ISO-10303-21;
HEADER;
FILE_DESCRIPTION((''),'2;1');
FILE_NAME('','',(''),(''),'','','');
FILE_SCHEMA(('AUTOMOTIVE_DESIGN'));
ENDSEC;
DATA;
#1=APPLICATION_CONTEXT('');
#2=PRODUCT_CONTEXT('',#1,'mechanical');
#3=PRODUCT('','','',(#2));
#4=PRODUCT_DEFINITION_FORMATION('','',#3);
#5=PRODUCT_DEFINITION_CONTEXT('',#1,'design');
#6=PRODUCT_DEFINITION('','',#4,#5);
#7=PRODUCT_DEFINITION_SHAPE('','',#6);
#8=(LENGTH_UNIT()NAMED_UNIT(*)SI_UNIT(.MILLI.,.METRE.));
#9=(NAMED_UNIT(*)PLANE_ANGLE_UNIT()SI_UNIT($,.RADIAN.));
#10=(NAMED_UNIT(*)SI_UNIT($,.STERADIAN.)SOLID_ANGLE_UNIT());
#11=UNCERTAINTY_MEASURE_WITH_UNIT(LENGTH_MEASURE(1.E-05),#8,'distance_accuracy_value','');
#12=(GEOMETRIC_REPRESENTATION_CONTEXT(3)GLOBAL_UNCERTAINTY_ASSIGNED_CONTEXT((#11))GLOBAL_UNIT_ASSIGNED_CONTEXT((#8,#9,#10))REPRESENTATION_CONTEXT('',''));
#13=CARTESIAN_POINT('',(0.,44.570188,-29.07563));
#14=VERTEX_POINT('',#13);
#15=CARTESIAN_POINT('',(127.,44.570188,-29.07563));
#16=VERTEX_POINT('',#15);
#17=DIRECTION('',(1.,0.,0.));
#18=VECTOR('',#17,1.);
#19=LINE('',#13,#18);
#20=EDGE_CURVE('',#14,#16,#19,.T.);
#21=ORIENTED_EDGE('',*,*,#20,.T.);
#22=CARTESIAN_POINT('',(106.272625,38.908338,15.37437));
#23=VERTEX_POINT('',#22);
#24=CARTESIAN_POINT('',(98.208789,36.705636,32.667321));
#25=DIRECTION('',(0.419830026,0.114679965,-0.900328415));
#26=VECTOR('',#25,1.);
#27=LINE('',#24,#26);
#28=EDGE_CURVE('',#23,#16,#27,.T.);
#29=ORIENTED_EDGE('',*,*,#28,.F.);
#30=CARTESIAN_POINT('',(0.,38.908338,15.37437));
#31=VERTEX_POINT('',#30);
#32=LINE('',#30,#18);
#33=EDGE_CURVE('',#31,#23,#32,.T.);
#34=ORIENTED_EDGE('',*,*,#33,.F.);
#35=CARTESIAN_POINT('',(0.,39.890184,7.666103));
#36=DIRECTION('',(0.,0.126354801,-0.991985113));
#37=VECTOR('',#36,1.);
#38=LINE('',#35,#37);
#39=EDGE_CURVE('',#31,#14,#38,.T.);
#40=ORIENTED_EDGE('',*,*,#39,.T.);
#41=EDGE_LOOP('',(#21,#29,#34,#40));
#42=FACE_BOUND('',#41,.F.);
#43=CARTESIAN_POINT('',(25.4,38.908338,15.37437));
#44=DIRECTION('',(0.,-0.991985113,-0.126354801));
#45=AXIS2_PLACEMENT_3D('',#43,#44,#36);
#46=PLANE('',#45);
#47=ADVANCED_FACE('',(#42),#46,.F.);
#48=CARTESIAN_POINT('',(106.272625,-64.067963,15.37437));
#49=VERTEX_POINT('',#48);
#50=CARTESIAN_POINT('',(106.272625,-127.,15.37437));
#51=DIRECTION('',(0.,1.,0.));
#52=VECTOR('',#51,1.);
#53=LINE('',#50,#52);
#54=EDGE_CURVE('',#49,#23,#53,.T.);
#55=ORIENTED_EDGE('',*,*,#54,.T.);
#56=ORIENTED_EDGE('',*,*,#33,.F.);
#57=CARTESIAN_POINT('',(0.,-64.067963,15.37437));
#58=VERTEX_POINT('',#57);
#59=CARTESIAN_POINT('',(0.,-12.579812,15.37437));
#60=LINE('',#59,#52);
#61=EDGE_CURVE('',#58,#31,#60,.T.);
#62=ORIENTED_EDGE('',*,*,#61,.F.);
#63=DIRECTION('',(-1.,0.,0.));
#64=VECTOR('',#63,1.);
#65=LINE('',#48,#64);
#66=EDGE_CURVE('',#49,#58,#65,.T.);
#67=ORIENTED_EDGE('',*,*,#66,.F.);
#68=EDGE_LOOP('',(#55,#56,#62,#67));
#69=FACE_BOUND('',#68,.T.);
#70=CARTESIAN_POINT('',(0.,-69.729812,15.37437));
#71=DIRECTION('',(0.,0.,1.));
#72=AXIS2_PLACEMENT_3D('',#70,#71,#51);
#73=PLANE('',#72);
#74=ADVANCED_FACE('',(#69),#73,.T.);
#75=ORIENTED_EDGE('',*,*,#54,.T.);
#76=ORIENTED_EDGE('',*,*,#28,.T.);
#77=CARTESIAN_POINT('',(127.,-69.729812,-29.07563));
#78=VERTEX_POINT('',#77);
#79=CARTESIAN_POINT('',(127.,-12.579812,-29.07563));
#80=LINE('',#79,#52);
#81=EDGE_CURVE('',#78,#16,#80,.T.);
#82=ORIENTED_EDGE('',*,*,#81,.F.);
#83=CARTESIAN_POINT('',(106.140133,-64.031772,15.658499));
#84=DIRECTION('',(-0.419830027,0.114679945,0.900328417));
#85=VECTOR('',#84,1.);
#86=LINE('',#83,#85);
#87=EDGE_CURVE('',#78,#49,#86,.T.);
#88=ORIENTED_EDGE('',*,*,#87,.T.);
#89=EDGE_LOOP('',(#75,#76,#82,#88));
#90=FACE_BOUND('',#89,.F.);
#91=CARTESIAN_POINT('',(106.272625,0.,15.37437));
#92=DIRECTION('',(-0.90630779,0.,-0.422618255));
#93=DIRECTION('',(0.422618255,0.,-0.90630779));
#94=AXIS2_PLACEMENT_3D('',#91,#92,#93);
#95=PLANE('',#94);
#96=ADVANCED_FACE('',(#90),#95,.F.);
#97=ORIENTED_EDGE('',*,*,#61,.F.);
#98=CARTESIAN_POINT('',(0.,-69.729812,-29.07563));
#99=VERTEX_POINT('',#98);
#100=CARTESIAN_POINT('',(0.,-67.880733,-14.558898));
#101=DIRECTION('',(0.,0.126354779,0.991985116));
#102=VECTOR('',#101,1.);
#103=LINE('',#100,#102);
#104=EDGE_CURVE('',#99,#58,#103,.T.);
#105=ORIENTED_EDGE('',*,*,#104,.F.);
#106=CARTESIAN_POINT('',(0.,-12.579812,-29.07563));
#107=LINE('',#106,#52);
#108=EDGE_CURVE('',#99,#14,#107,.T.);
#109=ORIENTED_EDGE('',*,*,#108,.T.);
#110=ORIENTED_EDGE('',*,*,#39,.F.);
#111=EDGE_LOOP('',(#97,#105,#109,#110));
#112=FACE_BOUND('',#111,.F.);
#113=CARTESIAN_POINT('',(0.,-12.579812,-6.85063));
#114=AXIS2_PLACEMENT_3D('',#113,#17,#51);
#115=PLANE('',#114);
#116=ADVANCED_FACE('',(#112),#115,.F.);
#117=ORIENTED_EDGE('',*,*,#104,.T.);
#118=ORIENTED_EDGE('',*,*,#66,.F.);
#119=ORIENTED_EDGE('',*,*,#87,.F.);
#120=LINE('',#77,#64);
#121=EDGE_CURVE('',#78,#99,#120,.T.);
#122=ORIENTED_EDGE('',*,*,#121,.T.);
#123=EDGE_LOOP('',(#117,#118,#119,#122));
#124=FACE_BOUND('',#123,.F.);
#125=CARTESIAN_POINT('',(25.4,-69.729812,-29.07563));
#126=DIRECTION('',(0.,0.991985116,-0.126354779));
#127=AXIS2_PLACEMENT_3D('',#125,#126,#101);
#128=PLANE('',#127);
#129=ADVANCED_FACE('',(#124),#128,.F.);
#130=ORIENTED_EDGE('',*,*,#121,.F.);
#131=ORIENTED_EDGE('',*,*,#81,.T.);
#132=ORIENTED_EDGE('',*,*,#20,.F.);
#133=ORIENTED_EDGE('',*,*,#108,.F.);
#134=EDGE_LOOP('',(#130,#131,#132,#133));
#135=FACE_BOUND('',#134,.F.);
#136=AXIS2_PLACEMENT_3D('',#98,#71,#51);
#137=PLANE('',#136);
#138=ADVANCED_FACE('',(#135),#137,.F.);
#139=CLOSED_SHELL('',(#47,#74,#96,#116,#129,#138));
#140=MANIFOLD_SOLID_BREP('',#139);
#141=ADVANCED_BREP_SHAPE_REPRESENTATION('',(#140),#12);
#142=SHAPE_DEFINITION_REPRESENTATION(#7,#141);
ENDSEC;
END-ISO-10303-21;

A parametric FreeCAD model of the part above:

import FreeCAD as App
import Part
import Sketcher
from FreeCAD import Vector
Q = App.Units.Quantity


def add_polygon(sketch, points):
    """Adds a closed chain of lines whose ends are joined by coincident constraints."""
    first, n = sketch.GeometryCount, len(points)
    for a, b in zip(points, points[1:] + points[:1]):
        sketch.addGeometry(Part.LineSegment(App.Vector(*a, 0), App.Vector(*b, 0)), False)
    for i in range(n):
        sketch.addConstraint(Sketcher.Constraint("Coincident", first + i, 2, first + (i + 1) % n, 1))

doc = App.newDocument("Part")
params = doc.addObject("Spreadsheet::Sheet", "Params")
for row, (alias, value) in enumerate([
    ("sketch1_width", "4.5 in"),
    ("sketch1_height", "1.75 in"),
    ("pad1_length", "5 in"),
    ("sketch2_height", "1.75 in"),
    ("pocket1_length", "10 in"),
    ("sketch3_height", "1.75 in"),
], start=1):
    params.set(f"A{row}", alias)
    params.set(f"B{row}", "=" + value)
    params.setAlias(f"B{row}", alias)

body = doc.addObject("PartDesign::Body", "Body")

sketch1 = body.newObject("Sketcher::SketchObject", "Sketch")
sketch1.AttachmentSupport = (doc.getObject("YZ_Plane"), [""])
sketch1.MapMode = "FlatFace"
add_polygon(sketch1, [(-70, 15), (-70, -29), (45, -29), (45, 15)])
sketch1.addConstraint([
    Sketcher.Constraint("Vertical", 0),
    Sketcher.Constraint("Horizontal", 1),
    Sketcher.Constraint("Vertical", 2),
    Sketcher.Constraint("Horizontal", 3),
    Sketcher.Constraint("DistanceX", 1, 1, 1, 2, Q("4.5 in")),
    Sketcher.Constraint("DistanceY", 0, 2, 0, 1, Q("1.75 in")),
    Sketcher.Constraint("DistanceX", 0, 2, -1, 1, 69.729812),
    Sketcher.Constraint("DistanceY", 0, 2, -1, 1, 29.07563),
])
sketch1.setExpression("Constraints[8]", "Params.sketch1_width")
sketch1.setExpression("Constraints[9]", "Params.sketch1_height")
pad1 = body.newObject("PartDesign::Pad", "Pad")
pad1.Profile = sketch1
pad1.setExpression("Length", "Params.pad1_length")

sketch2 = body.newObject("Sketcher::SketchObject", "Sketch001")
sketch2.AttachmentSupport = (doc.getObject("XZ_Plane"), [""])
sketch2.MapMode = "FlatFace"
add_polygon(sketch2, [(127, -29), (127, 15), (106, 15)])
sketch2.addConstraint([
    Sketcher.Constraint("Vertical", 0),
    Sketcher.Constraint("Horizontal", 1),
    Sketcher.Constraint("DistanceX", -1, 1, 0, 2, Q("5 in")),
    Sketcher.Constraint("Angle", 2, Q("-65 deg")),
    Sketcher.Constraint("DistanceY", 0, 1, 0, 2, Q("1.75 in")),
    Sketcher.Constraint("DistanceY", -1, 1, 0, 2, 15.37437),
])
sketch2.setExpression("Constraints[7]", "Params.sketch2_height")
pocket1 = body.newObject("PartDesign::Pocket", "Pocket")
pocket1.Profile = sketch2
pocket1.setExpression("Length", "Params.pocket1_length")
pocket1.Midplane = True

sketch3 = body.newObject("Sketcher::SketchObject", "Sketch002")
sketch3.AttachmentSupport = (doc.getObject("YZ_Plane"), [""])
sketch3.MapMode = "FlatFace"
sketch3.AttachmentOffset = App.Placement(Vector(0, 0, 1 * 25.4), App.Rotation())
add_polygon(sketch3, [(-70, 15), (-70, -29), (-64, 15)])
add_polygon(sketch3, [(39, 15), (45, -29), (45, 15)])
sketch3.addConstraint([
    Sketcher.Constraint("Vertical", 0),
    Sketcher.Constraint("Horizontal", 2),
    Sketcher.Constraint("Vertical", 4),
    Sketcher.Constraint("Horizontal", 5),
    Sketcher.Constraint("Horizontal", 0, 2, 3, 2),
    Sketcher.Constraint("Horizontal", 2, 2, 4, 2),
    Sketcher.Constraint("Equal", 2, 5),
    Sketcher.Constraint("DistanceY", 0, 2, 0, 1, Q("1.75 in")),
    Sketcher.Constraint("DistanceX", 0, 2, 3, 2, Q("4.5 in")),
    Sketcher.Constraint("DistanceX", 2, 2, 2, 1, 5.661849),
    Sketcher.Constraint("DistanceX", 0, 2, -1, 1, 69.729812),
    Sketcher.Constraint("DistanceY", 0, 2, -1, 1, 29.07563),
])
sketch3.setExpression("Constraints[13]", "Params.sketch3_height")
pocket2 = body.newObject("PartDesign::Pocket", "Pocket001")
pocket2.Profile = sketch3
pocket2.Type = "ThroughAll"
pocket2.Midplane = True

doc.recompute()
